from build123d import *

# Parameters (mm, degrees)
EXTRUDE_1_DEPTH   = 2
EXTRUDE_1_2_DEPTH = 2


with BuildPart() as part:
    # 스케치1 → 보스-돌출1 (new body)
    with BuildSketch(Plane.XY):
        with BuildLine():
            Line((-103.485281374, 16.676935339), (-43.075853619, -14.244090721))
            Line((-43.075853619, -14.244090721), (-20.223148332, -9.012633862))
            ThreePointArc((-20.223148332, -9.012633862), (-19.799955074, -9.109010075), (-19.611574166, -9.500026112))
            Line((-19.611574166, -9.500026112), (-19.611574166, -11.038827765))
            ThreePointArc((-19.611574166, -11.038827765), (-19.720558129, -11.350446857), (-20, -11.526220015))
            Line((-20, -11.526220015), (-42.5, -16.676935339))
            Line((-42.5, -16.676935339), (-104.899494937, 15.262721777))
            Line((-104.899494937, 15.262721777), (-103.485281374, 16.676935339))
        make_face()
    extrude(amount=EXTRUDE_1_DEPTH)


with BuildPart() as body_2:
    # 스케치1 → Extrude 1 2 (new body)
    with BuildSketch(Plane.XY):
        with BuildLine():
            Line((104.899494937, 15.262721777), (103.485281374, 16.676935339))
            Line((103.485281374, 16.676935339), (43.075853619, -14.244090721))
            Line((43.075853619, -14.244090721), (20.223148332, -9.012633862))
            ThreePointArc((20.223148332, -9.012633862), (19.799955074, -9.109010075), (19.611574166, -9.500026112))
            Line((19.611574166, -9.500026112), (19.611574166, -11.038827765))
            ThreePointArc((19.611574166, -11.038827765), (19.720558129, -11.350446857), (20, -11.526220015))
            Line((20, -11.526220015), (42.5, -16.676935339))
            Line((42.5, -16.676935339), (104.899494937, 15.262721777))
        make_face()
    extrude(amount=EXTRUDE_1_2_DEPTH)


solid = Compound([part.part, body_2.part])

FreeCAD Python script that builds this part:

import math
import FreeCAD as App
import Part
import Sketcher
Q = App.Units.Quantity

doc = App.newDocument("Part")
body = doc.addObject("PartDesign::Body", "Body")

sketch1 = body.newObject("Sketcher::SketchObject", "Sketch")
sketch1.AttachmentSupport = (doc.getObject("XY_Plane"), [""])
sketch1.MapMode = "FlatFace"
sketch1.addGeometry([
    Part.LineSegment(App.Vector(-43.1, -14.2, 0), App.Vector(-103.5, 16.7, 0)),
    Part.LineSegment(App.Vector(-103.5, 16.7, 0), App.Vector(-104.9, 15.3, 0)),
    Part.LineSegment(App.Vector(-104.9, 15.3, 0), App.Vector(-42.5, -16.7, 0)),
    Part.LineSegment(App.Vector(-42.5, -16.7, 0), App.Vector(-20, -11.5, 0)),
    Part.ArcOfCircle(Part.Circle(App.Vector(-20.1, -11, 0), App.Vector(0, 0, 1), 0.5), math.radians(-77), math.radians(0)),
    Part.LineSegment(App.Vector(-19.6, -11, 0), App.Vector(-19.6, -9.5, 0)),
    Part.ArcOfCircle(Part.Circle(App.Vector(-20.1, -9.5, 0), App.Vector(0, 0, 1), 0.5), math.radians(0), math.radians(103)),
    Part.LineSegment(App.Vector(-20.2, -9, 0), App.Vector(-43.1, -14.2, 0)),
], False)
sketch1.addConstraint([
    Sketcher.Constraint("Coincident", 0, 2, 1, 1),
    Sketcher.Constraint("Coincident", 1, 2, 2, 1),
    Sketcher.Constraint("Coincident", 2, 2, 3, 1),
    Sketcher.Constraint("Tangent", 3, 2, 4, 1),
    Sketcher.Constraint("Tangent", 4, 2, 5, 1),
    Sketcher.Constraint("Tangent", 5, 2, 6, 1),
    Sketcher.Constraint("Tangent", 6, 2, 7, 1),
    Sketcher.Constraint("Coincident", 7, 2, 0, 1),
    Sketcher.Constraint("Vertical", 5),
    Sketcher.Constraint("Equal", 4, 6),
    Sketcher.Constraint("Parallel", 0, 2),
    Sketcher.Constraint("Parallel", 3, 7),
    Sketcher.Constraint("Radius", 4, Q("0.5 mm")),
    Sketcher.Constraint("Angle", 1, Q("-135 deg")),
    Sketcher.Constraint("Distance", 1, Q("2 mm")),
    Sketcher.Constraint("DistanceX", 3, 2, -1, 1, Q("20 mm")),
    Sketcher.Constraint("DistanceX", 2, 2, -1, 1, Q("42.5 mm")),
    Sketcher.Constraint("DistanceY", 5, 1, 5, 2, Q("1.538802 mm")),
    Sketcher.Constraint("DistanceX", 0, 2, -1, 1, Q("103.485281 mm")),
    Sketcher.Constraint("DistanceY", -1, 1, 1, 2, Q("15.262722 mm")),
    Sketcher.Constraint("DistanceY", 3, 2, -1, 1, Q("11.52622 mm")),
    Sketcher.Constraint("DistanceX", 6, 2, -1, 1, Q("20.223148 mm")),
])
pad1 = body.newObject("PartDesign::Pad", "Pad")
pad1.Profile = sketch1
pad1.Length = 2
body2 = doc.addObject("PartDesign::Body", "Body001")

sketch2 = body2.newObject("Sketcher::SketchObject", "Sketch001")
sketch2.AttachmentSupport = (doc.getObject("XY_Plane001"), [""])
sketch2.MapMode = "FlatFace"
sketch2.addGeometry([
    Part.LineSegment(App.Vector(104.899495, 15.262722, 0), App.Vector(103.485281, 16.676935, 0)),
    Part.LineSegment(App.Vector(103.485281, 16.676935, 0), App.Vector(43.075854, -14.244091, 0)),
    Part.LineSegment(App.Vector(43.075854, -14.244091, 0), App.Vector(20.223148, -9.012634, 0)),
    Part.ArcOfCircle(Part.Circle(App.Vector(20.111574, -9.500026, 0), App.Vector(0, 0, 1), 0.5), math.radians(77.105983), math.radians(180)),
    Part.LineSegment(App.Vector(19.611574, -9.500026, 0), App.Vector(19.611574, -11.038828, 0)),
    Part.ArcOfCircle(Part.Circle(App.Vector(20.111574, -11.038828, 0), App.Vector(0, 0, 1), 0.5), math.radians(-180), math.radians(-102.894017)),
    Part.LineSegment(App.Vector(20, -11.52622, 0), App.Vector(42.5, -16.676935, 0)),
    Part.LineSegment(App.Vector(42.5, -16.676935, 0), App.Vector(104.899495, 15.262722, 0)),
], False)
sketch2.addConstraint([
    Sketcher.Constraint("Coincident", 0, 2, 1, 1),
    Sketcher.Constraint("Coincident", 1, 2, 2, 1),
    Sketcher.Constraint("Coincident", 2, 2, 3, 1),
    Sketcher.Constraint("Coincident", 3, 2, 4, 1),
    Sketcher.Constraint("Coincident", 4, 2, 5, 1),
    Sketcher.Constraint("Coincident", 5, 2, 6, 1),
    Sketcher.Constraint("Coincident", 6, 2, 7, 1),
    Sketcher.Constraint("Coincident", 7, 2, 0, 1),
    Sketcher.Constraint("Vertical", 4),
    Sketcher.Constraint("Radius", 3, Q("0.5 mm")),
    Sketcher.Constraint("Radius", 5, Q("0.5 mm")),
    Sketcher.Constraint("Distance", 0, Q("2 mm")),
    Sketcher.Constraint("DistanceX", -1, 1, 5, 2, Q("20 mm")),
    Sketcher.Constraint("DistanceX", -1, 1, 6, 2, Q("42.5 mm")),
    Sketcher.Constraint("DistanceY", 4, 2, 4, 1, Q("1.538802 mm")),
    Sketcher.Constraint("DistanceY", 5, 3, 3, 3, Q("1.538802 mm")),
    Sketcher.Constraint("DistanceY", 5, 3, 3, 2, Q("1.538802 mm")),
    Sketcher.Constraint("DistanceY", 6, 2, 2, 2, Q("7.664301 mm")),
    Sketcher.Constraint("DistanceX", -1, 1, 0, 2, Q("103.485281 mm")),
    Sketcher.Constraint("DistanceY", 1, 2, -1, 1, Q("14.244091 mm")),
    Sketcher.Constraint("DistanceX", -1, 1, 2, 2, Q("20.223148 mm")),
    Sketcher.Constraint("DistanceY", 5, 2, -1, 1, Q("11.52622 mm")),
    Sketcher.Constraint("DistanceY", -1, 1, 7, 2, Q("15.262722 mm")),
    Sketcher.Constraint("DistanceY", 3, 3, 0, 2, Q("26.176961 mm")),
    Sketcher.Constraint("DistanceX", 5, 3, 1, 2, Q("22.964279 mm")),
    Sketcher.Constraint("DistanceY", 2, 2, 0, 2, Q("25.689569 mm")),
])
pad2 = body2.newObject("PartDesign::Pad", "Pad001")
pad2.Profile = sketch2
pad2.Length = 2

doc.recompute()
